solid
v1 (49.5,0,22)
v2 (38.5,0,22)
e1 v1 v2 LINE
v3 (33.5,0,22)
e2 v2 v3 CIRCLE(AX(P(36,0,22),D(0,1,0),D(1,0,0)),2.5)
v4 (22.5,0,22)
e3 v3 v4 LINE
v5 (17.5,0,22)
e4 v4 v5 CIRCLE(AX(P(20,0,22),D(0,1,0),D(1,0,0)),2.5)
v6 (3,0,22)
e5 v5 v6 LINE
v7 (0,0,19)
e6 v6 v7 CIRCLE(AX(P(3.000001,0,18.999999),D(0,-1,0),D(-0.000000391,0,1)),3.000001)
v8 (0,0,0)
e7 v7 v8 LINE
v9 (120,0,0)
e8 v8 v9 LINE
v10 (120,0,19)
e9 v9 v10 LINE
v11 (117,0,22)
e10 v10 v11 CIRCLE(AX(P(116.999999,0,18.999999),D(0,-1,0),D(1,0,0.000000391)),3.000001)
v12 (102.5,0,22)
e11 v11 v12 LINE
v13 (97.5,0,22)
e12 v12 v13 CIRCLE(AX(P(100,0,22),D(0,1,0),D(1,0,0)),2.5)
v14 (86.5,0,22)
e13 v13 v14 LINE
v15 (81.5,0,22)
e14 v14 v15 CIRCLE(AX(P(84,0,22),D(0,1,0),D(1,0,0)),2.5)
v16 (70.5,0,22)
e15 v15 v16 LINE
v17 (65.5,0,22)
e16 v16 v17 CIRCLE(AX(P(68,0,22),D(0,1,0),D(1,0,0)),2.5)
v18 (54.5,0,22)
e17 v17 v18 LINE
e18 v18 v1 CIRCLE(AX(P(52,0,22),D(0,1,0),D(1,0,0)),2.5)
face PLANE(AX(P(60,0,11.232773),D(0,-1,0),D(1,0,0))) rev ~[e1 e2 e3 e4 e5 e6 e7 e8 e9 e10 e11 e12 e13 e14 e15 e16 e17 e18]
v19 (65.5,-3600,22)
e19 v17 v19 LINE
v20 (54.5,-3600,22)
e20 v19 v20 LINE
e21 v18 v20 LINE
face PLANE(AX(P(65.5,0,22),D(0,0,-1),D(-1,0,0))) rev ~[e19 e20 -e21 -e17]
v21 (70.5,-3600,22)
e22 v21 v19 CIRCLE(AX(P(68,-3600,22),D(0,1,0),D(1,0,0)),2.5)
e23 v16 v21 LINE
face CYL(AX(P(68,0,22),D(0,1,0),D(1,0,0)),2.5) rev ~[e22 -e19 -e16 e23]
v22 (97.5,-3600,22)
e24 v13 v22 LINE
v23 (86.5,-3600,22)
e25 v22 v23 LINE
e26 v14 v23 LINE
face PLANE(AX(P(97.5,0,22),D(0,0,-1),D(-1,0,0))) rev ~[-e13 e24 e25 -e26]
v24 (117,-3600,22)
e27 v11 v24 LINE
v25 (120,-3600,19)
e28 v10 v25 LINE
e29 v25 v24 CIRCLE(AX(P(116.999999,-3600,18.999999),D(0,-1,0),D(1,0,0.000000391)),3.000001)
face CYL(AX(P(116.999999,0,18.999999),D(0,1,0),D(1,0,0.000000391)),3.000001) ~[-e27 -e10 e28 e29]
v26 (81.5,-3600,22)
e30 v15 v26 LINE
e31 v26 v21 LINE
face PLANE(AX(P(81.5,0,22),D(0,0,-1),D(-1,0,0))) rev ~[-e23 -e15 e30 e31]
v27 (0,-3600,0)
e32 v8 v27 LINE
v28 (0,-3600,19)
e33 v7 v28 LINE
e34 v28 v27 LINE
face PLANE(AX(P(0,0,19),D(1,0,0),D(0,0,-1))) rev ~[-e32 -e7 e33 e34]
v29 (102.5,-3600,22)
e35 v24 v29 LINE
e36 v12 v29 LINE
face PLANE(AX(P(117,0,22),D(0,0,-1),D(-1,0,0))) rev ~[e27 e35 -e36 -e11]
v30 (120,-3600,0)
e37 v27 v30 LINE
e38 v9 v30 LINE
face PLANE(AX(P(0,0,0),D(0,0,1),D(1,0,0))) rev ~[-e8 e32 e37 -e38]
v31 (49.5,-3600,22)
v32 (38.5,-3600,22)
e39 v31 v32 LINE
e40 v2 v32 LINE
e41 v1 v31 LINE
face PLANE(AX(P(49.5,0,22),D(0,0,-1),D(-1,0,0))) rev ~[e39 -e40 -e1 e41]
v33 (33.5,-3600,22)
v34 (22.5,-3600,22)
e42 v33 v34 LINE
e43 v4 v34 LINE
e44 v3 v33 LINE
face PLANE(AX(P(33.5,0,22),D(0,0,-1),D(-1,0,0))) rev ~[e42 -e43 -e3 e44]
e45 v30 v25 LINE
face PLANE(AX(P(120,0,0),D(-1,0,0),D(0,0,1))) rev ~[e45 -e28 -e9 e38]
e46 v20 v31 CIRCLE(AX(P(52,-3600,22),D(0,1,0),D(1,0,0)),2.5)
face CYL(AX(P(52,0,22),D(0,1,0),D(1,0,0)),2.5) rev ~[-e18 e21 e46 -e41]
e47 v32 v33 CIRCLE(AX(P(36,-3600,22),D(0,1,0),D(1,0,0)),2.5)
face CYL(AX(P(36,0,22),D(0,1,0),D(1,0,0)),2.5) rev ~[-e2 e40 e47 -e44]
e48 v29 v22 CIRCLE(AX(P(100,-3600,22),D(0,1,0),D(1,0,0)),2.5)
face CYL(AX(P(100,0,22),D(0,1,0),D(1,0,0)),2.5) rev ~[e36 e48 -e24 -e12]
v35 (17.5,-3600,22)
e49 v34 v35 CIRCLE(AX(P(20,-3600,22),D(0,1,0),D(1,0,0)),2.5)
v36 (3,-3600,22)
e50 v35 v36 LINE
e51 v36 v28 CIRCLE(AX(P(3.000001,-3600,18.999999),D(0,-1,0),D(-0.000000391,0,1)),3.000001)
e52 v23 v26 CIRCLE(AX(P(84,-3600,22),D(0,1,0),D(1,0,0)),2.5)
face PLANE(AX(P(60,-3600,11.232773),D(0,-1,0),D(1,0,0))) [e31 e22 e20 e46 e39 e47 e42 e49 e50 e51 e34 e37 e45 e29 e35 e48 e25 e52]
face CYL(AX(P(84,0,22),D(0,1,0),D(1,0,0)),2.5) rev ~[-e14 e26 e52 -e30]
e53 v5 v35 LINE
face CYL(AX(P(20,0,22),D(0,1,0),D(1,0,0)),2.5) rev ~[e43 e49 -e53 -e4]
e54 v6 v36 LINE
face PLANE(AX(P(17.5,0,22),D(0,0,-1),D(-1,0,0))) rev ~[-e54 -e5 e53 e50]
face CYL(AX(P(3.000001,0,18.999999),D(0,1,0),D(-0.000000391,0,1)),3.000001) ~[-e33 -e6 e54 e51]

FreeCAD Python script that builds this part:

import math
import FreeCAD as App
import Part
import Sketcher
Q = App.Units.Quantity

doc = App.newDocument("Part")
body = doc.addObject("PartDesign::Body", "Body")

# Sketch on XZ plane
sketch1 = doc.addObject("Sketcher::SketchObject", "Sketch")
body.addObject(sketch1)
sketch1.AttachmentSupport = (doc.XZ_Plane, [""])
sketch1.MapMode = "FlatFace"
sketch1.addGeometry(Part.LineSegment(App.Vector(0, 19, 0), App.Vector(0, 0, 0)), False)
sketch1.addGeometry(Part.LineSegment(App.Vector(0, 0, 0), App.Vector(120, 0, 0)), False)
sketch1.addGeometry(Part.LineSegment(App.Vector(120, 0, 0), App.Vector(120, 19, 0)), False)
sketch1.addGeometry(Part.ArcOfCircle(Part.Circle(App.Vector(117, 19, 0), App.Vector(0, 0, 1), 3), math.radians(0), math.radians(90)), False)
sketch1.addGeometry(Part.LineSegment(App.Vector(117, 22, 0), App.Vector(102.5, 22, 0)), False)
sketch1.addGeometry(Part.ArcOfCircle(Part.Circle(App.Vector(100, 22, 0), App.Vector(0, 0, 1), 2.5), math.radians(180), math.radians(360)), False)
sketch1.addGeometry(Part.LineSegment(App.Vector(97.5, 22, 0), App.Vector(86.5, 22, 0)), False)
sketch1.addGeometry(Part.ArcOfCircle(Part.Circle(App.Vector(84, 22, 0), App.Vector(0, 0, 1), 2.5), math.radians(180), math.radians(360)), False)
sketch1.addGeometry(Part.LineSegment(App.Vector(81.5, 22, 0), App.Vector(70.5, 22, 0)), False)
sketch1.addGeometry(Part.ArcOfCircle(Part.Circle(App.Vector(68, 22, 0), App.Vector(0, 0, 1), 2.5), math.radians(180), math.radians(360)), False)
sketch1.addGeometry(Part.LineSegment(App.Vector(65.5, 22, 0), App.Vector(54.5, 22, 0)), False)
sketch1.addGeometry(Part.ArcOfCircle(Part.Circle(App.Vector(52, 22, 0), App.Vector(0, 0, 1), 2.5), math.radians(180), math.radians(360)), False)
sketch1.addGeometry(Part.LineSegment(App.Vector(49.5, 22, 0), App.Vector(38.5, 22, 0)), False)
sketch1.addGeometry(Part.ArcOfCircle(Part.Circle(App.Vector(36, 22, 0), App.Vector(0, 0, 1), 2.5), math.radians(180), math.radians(360)), False)
sketch1.addGeometry(Part.LineSegment(App.Vector(33.5, 22, 0), App.Vector(22.5, 22, 0)), False)
sketch1.addGeometry(Part.ArcOfCircle(Part.Circle(App.Vector(20, 22, 0), App.Vector(0, 0, 1), 2.5), math.radians(180), math.radians(360)), False)
sketch1.addGeometry(Part.LineSegment(App.Vector(17.5, 22, 0), App.Vector(3, 22, 0)), False)
sketch1.addGeometry(Part.ArcOfCircle(Part.Circle(App.Vector(3, 19, 0), App.Vector(0, 0, 1), 3), math.radians(90), math.radians(180)), False)
sketch1.addConstraint(Sketcher.Constraint("Coincident", 0, 2, 1, 1))
sketch1.addConstraint(Sketcher.Constraint("Coincident", 1, 2, 2, 1))
sketch1.addConstraint(Sketcher.Constraint("Tangent", 2, 2, 3, 1))
sketch1.addConstraint(Sketcher.Constraint("Tangent", 3, 2, 4, 1))
sketch1.addConstraint(Sketcher.Constraint("Coincident", 4, 2, 5, 2))
sketch1.addConstraint(Sketcher.Constraint("Coincident", 5, 1, 6, 1))
sketch1.addConstraint(Sketcher.Constraint("Coincident", 6, 2, 7, 2))
sketch1.addConstraint(Sketcher.Constraint("Coincident", 7, 1, 8, 1))
sketch1.addConstraint(Sketcher.Constraint("Coincident", 8, 2, 9, 2))
sketch1.addConstraint(Sketcher.Constraint("Coincident", 9, 1, 10, 1))
sketch1.addConstraint(Sketcher.Constraint("Coincident", 10, 2, 11, 2))
sketch1.addConstraint(Sketcher.Constraint("Coincident", 11, 1, 12, 1))
sketch1.addConstraint(Sketcher.Constraint("Coincident", 12, 2, 13, 2))
sketch1.addConstraint(Sketcher.Constraint("Coincident", 13, 1, 14, 1))
sketch1.addConstraint(Sketcher.Constraint("Coincident", 14, 2, 15, 2))
sketch1.addConstraint(Sketcher.Constraint("Coincident", 15, 1, 16, 1))
sketch1.addConstraint(Sketcher.Constraint("Tangent", 16, 2, 17, 1))
sketch1.addConstraint(Sketcher.Constraint("Tangent", 17, 2, 0, 1))
sketch1.addConstraint(Sketcher.Constraint("Vertical", 0))
sketch1.addConstraint(Sketcher.Constraint("Horizontal", 1))
sketch1.addConstraint(Sketcher.Constraint("Vertical", 2))
sketch1.addConstraint(Sketcher.Constraint("Horizontal", 4))
sketch1.addConstraint(Sketcher.Constraint("Horizontal", 6))
sketch1.addConstraint(Sketcher.Constraint("Horizontal", 8))
sketch1.addConstraint(Sketcher.Constraint("Horizontal", 10))
sketch1.addConstraint(Sketcher.Constraint("Horizontal", 12))
sketch1.addConstraint(Sketcher.Constraint("Horizontal", 14))
sketch1.addConstraint(Sketcher.Constraint("Horizontal", 16))
sketch1.addConstraint(Sketcher.Constraint("Coincident", 0, 2, -1, 1))
sketch1.addConstraint(Sketcher.Constraint("Equal", 5, 7))
sketch1.addConstraint(Sketcher.Constraint("Equal", 7, 9))
sketch1.addConstraint(Sketcher.Constraint("Equal", 9, 11))
sketch1.addConstraint(Sketcher.Constraint("Equal", 11, 13))
sketch1.addConstraint(Sketcher.Constraint("Equal", 13, 15))
sketch1.addConstraint(Sketcher.Constraint("Equal", 3, 17))
sketch1.addConstraint(Sketcher.Constraint("Horizontal", 5, 3, 7, 3))
sketch1.addConstraint(Sketcher.Constraint("Horizontal", 7, 3, 9, 3))
sketch1.addConstraint(Sketcher.Constraint("Horizontal", 9, 3, 11, 3))
sketch1.addConstraint(Sketcher.Constraint("Horizontal", 11, 3, 13, 3))
sketch1.addConstraint(Sketcher.Constraint("Horizontal", 13, 3, 15, 3))
sketch1.addConstraint(Sketcher.Constraint("Horizontal", 3, 3, 17, 3))
sketch1.addConstraint(Sketcher.Constraint("Horizontal", 15, 3, 3, 2))
sketch1.addConstraint(Sketcher.Constraint("Horizontal", 4, 2, 5, 1))
sketch1.addConstraint(Sketcher.Constraint("Horizontal", 6, 2, 7, 1))
sketch1.addConstraint(Sketcher.Constraint("Horizontal", 8, 2, 9, 1))
sketch1.addConstraint(Sketcher.Constraint("Horizontal", 10, 2, 11, 1))
sketch1.addConstraint(Sketcher.Constraint("Horizontal", 12, 2, 13, 1))
sketch1.addConstraint(Sketcher.Constraint("Equal", 6, 8))
sketch1.addConstraint(Sketcher.Constraint("Equal", 8, 10))
sketch1.addConstraint(Sketcher.Constraint("Equal", 10, 12))
sketch1.addConstraint(Sketcher.Constraint("Equal", 12, 14))
sketch1.addConstraint(Sketcher.Constraint("Equal", 4, 16))
sketch1.addConstraint(Sketcher.Constraint("Radius", 3, Q("3.000001 mm")))
sketch1.addConstraint(Sketcher.Constraint("Radius", 5, Q("2.5 mm")))
sketch1.addConstraint(Sketcher.Constraint("DistanceX", 1, 1, 1, 2, Q("120 mm")))
sketch1.addConstraint(Sketcher.Constraint("DistanceX", 6, 2, 6, 1, Q("11 mm")))
sketch1.addConstraint(Sketcher.Constraint("DistanceY", 0, 2, 0, 1, Q("19 mm")))
pad1 = doc.addObject("PartDesign::Pad", "Pad")
body.addObject(pad1)
pad1.Profile = sketch1
pad1.Length = 3600

doc.recompute()
